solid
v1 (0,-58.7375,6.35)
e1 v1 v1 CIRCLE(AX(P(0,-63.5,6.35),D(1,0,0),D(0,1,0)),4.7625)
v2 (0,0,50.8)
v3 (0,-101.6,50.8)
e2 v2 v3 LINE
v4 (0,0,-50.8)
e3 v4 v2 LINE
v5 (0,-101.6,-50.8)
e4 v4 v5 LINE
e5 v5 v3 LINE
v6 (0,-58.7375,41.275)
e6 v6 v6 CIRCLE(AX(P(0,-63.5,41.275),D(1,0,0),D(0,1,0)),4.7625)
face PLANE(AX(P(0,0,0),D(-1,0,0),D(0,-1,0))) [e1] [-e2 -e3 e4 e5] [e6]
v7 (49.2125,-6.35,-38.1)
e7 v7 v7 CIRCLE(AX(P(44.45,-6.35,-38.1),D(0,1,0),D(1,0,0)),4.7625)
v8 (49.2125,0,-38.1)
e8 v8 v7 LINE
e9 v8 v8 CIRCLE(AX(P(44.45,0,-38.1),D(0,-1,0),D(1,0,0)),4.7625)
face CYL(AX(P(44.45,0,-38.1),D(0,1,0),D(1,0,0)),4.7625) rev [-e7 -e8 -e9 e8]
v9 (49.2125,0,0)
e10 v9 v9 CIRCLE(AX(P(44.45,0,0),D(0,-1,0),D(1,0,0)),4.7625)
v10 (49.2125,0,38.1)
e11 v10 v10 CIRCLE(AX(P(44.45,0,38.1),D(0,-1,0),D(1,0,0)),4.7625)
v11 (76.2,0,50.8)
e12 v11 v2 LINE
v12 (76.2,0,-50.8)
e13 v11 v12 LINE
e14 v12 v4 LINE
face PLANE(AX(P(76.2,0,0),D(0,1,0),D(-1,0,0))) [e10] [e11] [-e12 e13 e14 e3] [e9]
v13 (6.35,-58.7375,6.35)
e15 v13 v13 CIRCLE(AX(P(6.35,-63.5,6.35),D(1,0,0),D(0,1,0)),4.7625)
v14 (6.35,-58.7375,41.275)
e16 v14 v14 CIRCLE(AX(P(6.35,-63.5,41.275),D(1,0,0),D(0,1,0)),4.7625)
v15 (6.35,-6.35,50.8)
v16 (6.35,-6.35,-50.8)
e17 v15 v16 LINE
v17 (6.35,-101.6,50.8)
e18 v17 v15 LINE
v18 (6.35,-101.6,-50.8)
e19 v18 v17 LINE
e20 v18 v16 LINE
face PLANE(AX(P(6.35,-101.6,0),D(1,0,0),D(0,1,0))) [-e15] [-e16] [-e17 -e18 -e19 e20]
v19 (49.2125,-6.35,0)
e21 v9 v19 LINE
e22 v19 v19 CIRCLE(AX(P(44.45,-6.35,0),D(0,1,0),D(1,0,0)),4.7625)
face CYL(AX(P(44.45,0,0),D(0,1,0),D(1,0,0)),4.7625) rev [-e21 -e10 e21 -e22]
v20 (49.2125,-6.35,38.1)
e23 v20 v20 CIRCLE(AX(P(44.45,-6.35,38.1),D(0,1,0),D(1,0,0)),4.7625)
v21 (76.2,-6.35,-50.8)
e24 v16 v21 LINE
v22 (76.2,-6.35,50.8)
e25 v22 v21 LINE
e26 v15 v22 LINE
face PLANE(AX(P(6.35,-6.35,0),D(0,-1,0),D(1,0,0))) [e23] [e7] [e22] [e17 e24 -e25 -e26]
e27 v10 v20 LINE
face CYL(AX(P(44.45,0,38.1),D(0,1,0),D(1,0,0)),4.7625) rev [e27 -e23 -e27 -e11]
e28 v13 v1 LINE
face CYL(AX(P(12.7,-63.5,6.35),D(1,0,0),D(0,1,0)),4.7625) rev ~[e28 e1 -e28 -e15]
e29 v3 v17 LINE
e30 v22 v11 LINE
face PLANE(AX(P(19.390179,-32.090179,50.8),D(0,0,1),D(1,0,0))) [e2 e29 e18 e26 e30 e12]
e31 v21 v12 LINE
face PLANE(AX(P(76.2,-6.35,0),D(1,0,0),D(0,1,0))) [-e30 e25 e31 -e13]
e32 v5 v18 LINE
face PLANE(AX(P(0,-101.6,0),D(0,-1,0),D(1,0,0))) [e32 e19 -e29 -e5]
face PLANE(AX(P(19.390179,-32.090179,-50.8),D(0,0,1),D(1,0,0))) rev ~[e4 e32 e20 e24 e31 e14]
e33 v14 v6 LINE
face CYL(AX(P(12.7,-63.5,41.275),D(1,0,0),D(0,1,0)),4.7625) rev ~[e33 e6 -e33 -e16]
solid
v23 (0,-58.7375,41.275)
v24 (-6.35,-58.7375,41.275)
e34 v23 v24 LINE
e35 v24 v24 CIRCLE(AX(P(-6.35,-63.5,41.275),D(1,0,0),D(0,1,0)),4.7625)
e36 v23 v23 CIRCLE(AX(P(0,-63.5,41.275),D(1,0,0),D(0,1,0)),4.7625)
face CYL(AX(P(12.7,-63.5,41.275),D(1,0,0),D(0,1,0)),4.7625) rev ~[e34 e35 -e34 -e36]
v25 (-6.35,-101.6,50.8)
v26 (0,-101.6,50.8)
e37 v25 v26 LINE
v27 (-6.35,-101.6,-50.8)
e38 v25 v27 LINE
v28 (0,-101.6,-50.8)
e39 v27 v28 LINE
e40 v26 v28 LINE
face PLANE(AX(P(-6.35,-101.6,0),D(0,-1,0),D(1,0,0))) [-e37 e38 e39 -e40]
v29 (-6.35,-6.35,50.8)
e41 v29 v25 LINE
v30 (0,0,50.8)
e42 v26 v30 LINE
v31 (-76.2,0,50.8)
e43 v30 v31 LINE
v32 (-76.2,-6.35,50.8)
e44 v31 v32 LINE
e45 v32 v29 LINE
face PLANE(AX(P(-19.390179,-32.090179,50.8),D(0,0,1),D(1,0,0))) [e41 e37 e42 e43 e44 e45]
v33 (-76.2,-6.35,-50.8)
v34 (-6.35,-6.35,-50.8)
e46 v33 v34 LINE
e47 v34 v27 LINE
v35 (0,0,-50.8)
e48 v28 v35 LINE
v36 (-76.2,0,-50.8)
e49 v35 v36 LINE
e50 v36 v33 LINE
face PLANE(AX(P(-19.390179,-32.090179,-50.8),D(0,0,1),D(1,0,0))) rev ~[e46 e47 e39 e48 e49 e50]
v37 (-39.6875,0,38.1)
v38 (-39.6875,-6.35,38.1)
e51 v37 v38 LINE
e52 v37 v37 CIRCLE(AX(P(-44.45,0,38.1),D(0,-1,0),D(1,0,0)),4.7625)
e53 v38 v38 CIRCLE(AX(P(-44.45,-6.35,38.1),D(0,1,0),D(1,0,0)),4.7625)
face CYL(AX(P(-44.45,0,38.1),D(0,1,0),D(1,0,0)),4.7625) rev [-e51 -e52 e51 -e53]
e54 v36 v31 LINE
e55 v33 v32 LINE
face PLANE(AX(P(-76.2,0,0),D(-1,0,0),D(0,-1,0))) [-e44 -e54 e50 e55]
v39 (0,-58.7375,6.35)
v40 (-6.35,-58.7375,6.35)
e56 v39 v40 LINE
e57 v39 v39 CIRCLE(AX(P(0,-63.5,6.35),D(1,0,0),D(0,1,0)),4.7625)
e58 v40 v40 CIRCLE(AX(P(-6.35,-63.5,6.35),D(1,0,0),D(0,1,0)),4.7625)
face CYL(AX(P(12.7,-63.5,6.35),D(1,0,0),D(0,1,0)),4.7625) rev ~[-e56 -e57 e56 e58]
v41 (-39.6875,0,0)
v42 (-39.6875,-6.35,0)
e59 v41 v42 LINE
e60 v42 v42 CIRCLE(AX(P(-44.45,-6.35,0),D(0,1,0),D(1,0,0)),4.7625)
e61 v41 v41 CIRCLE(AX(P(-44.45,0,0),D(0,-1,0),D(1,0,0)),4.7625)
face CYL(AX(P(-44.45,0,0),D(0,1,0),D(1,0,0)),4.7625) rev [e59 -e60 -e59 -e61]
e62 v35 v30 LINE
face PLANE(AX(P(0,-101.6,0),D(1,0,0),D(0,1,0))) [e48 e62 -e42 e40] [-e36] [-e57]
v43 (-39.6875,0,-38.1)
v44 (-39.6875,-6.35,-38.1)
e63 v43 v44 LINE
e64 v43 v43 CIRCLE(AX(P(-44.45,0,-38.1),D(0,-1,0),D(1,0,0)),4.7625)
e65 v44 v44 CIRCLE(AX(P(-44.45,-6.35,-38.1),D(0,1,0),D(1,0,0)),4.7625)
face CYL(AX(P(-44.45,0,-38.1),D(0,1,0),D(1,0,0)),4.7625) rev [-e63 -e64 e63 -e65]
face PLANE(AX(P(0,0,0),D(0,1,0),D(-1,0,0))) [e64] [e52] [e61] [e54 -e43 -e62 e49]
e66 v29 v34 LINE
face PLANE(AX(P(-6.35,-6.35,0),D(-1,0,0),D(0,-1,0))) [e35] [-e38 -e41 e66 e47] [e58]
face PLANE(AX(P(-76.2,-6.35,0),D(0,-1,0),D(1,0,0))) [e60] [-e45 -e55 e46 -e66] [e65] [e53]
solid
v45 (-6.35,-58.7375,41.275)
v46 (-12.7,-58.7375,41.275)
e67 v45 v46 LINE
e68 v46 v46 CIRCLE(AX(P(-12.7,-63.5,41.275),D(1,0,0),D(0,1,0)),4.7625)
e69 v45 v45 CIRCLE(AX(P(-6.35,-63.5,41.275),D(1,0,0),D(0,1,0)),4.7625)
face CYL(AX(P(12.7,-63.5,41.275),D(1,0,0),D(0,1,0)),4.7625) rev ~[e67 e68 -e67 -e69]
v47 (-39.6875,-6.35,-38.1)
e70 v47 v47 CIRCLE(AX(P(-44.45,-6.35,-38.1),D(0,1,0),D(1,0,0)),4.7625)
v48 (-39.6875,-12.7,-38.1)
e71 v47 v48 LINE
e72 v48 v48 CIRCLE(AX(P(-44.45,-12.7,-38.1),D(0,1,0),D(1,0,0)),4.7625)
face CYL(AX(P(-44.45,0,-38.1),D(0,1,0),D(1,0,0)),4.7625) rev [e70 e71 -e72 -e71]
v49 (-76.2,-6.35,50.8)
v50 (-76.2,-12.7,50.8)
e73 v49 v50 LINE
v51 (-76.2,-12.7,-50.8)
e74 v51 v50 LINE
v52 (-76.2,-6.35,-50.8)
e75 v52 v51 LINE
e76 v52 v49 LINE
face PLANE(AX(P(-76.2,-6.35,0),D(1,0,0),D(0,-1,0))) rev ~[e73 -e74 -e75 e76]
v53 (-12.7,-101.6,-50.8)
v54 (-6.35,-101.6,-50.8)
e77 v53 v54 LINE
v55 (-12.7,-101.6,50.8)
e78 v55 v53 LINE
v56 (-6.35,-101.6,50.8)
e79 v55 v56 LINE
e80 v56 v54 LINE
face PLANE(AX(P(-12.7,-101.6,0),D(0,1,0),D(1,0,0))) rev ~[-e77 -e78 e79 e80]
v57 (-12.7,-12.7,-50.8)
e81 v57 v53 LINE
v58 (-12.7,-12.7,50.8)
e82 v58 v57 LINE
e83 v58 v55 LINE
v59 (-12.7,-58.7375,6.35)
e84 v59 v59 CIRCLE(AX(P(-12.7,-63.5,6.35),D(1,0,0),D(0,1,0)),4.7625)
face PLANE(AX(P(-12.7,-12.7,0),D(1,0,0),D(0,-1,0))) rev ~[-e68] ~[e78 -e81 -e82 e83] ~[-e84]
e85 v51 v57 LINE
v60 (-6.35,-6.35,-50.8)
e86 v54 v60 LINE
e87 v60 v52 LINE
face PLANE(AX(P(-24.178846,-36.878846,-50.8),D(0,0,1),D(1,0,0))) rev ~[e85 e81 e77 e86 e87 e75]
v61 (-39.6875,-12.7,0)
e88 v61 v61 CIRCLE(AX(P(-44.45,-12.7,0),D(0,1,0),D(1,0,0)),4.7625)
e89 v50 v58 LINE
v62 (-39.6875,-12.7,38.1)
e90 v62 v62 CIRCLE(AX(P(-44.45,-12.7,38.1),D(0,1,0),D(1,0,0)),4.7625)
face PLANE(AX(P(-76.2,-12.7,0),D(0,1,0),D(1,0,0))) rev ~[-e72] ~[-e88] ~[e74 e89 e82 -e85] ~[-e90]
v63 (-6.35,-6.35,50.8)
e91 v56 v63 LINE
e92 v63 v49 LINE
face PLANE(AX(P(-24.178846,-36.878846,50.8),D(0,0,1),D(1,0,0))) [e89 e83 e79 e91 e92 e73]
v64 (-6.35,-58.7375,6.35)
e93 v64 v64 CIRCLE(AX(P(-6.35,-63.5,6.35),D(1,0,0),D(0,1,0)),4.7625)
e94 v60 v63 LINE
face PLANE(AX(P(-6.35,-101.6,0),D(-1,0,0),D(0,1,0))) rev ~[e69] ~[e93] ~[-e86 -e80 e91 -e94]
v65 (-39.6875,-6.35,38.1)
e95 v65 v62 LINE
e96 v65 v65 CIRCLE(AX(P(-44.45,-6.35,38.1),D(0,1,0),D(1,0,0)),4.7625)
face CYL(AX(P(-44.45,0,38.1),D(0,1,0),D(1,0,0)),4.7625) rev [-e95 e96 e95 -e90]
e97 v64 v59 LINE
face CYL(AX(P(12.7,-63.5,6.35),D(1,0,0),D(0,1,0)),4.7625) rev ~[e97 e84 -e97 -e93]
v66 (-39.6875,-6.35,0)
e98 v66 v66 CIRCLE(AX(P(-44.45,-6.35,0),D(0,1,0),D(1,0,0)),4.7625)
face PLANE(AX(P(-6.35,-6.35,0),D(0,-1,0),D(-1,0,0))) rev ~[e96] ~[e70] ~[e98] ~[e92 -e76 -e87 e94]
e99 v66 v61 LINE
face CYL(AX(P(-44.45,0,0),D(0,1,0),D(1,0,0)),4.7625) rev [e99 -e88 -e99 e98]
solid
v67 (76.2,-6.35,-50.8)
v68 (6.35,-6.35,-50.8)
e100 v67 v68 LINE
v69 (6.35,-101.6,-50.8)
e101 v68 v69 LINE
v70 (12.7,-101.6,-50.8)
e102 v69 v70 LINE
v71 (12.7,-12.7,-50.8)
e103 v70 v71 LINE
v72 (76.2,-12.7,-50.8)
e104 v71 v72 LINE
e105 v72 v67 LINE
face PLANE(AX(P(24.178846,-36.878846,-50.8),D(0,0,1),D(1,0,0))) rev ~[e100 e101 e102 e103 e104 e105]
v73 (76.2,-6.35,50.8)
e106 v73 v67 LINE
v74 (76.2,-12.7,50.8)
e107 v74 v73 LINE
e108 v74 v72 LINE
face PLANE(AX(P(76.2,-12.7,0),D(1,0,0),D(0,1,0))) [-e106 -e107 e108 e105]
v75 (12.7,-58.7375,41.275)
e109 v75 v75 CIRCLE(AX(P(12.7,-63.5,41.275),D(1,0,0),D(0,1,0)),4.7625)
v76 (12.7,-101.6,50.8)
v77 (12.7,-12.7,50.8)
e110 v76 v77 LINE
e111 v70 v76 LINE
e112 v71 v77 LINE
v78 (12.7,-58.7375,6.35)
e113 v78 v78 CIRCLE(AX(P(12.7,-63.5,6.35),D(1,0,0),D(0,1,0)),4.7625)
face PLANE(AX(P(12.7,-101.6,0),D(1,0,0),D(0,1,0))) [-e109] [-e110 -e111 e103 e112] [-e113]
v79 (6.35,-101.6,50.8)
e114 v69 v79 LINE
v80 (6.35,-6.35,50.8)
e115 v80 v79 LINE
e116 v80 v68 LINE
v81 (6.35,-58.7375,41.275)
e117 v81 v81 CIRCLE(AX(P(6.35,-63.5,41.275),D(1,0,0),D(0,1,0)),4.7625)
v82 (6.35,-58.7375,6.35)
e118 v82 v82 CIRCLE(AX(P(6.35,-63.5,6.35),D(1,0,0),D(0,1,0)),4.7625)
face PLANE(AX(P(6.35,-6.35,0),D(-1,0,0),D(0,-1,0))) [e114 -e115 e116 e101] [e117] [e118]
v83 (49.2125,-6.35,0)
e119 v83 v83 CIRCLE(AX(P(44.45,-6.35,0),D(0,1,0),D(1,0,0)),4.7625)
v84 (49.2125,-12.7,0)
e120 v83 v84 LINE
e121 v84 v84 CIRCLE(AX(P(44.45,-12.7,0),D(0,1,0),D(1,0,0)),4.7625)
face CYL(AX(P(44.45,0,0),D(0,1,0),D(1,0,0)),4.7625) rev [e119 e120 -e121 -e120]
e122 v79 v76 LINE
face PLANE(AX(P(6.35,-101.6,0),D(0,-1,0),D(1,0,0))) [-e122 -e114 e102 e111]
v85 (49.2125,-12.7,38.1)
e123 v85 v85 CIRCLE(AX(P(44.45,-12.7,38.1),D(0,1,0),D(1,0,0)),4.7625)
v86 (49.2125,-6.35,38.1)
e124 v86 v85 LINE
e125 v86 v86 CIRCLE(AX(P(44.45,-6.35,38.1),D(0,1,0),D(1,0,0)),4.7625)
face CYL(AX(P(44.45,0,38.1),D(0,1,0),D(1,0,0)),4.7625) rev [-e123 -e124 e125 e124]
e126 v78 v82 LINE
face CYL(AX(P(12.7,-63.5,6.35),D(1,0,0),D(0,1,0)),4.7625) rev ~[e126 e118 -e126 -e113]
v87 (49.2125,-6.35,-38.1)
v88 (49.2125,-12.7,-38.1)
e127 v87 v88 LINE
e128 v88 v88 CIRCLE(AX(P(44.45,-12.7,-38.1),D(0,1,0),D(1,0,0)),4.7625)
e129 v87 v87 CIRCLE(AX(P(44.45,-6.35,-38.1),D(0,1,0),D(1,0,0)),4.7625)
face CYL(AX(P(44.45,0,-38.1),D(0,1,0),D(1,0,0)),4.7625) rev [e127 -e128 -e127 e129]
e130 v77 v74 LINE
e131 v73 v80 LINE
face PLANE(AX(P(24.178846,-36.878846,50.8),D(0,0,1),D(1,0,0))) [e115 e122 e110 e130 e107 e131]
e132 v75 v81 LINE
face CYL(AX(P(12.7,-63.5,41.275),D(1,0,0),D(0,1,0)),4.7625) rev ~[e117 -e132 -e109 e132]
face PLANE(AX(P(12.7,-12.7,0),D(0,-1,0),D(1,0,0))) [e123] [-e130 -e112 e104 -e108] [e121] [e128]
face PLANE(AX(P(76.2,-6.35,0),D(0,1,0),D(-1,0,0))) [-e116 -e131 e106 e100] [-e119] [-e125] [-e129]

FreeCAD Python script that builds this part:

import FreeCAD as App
import Part
import Sketcher
from FreeCAD import Vector
Q = App.Units.Quantity

doc = App.newDocument("Part")
body = doc.addObject("PartDesign::Body", "Body")

sketch1 = body.newObject("Sketcher::SketchObject", "Sketch")
sketch1.AttachmentSupport = (doc.getObject("XY_Plane"), [""])
sketch1.MapMode = "FlatFace"
sketch1.addGeometry([
    Part.LineSegment(Vector(76, 0, 0), Vector(0, 0, 0)),
    Part.LineSegment(Vector(0, 0, 0), Vector(0, -102, 0)),
    Part.LineSegment(Vector(0, -102, 0), Vector(6, -102, 0)),
    Part.LineSegment(Vector(6, -102, 0), Vector(6, -6, 0)),
    Part.LineSegment(Vector(6, -6, 0), Vector(76, -6, 0)),
    Part.LineSegment(Vector(76, -6, 0), Vector(76, 0, 0)),
], False)
sketch1.addConstraint([
    Sketcher.Constraint("Coincident", 0, 2, 1, 1),
    Sketcher.Constraint("Coincident", 1, 2, 2, 1),
    Sketcher.Constraint("Coincident", 2, 2, 3, 1),
    Sketcher.Constraint("Coincident", 3, 2, 4, 1),
    Sketcher.Constraint("Coincident", 4, 2, 5, 1),
    Sketcher.Constraint("Coincident", 5, 2, 0, 1),
    Sketcher.Constraint("Horizontal", 0),
    Sketcher.Constraint("Vertical", 1),
    Sketcher.Constraint("Horizontal", 2),
    Sketcher.Constraint("Vertical", 3),
    Sketcher.Constraint("Horizontal", 4),
    Sketcher.Constraint("Vertical", 5),
    Sketcher.Constraint("Coincident", 0, 2, -1, 1),
    Sketcher.Constraint("Equal", 2, 5),
    Sketcher.Constraint("DistanceX", 0, 2, 0, 1, Q("3 in")),
    Sketcher.Constraint("DistanceY", 1, 2, 1, 1, Q("4 in")),
    Sketcher.Constraint("DistanceX", 2, 1, 2, 2, Q("0.25 in")),
])
pad1 = body.newObject("PartDesign::Pad", "Pad")
pad1.Profile = sketch1
pad1.Length = Q("4 in")
pad1.Midplane = True
body2 = doc.addObject("PartDesign::Body", "Body001")

sketch2 = body2.newObject("Sketcher::SketchObject", "Sketch001")
sketch2.AttachmentSupport = (doc.getObject("XY_Plane001"), [""])
sketch2.MapMode = "FlatFace"
sketch2.addGeometry([
    Part.LineSegment(Vector(0, -102, 0), Vector(0, 0, 0)),
    Part.LineSegment(Vector(0, 0, 0), Vector(-76, 0, 0)),
    Part.LineSegment(Vector(-76, 0, 0), Vector(-76, -6, 0)),
    Part.LineSegment(Vector(-76, -6, 0), Vector(-6, -6, 0)),
    Part.LineSegment(Vector(-6, -6, 0), Vector(-6, -102, 0)),
    Part.LineSegment(Vector(-6, -102, 0), Vector(0, -102, 0)),
], False)
sketch2.addConstraint([
    Sketcher.Constraint("Coincident", 0, 2, 1, 1),
    Sketcher.Constraint("Coincident", 1, 2, 2, 1),
    Sketcher.Constraint("Coincident", 2, 2, 3, 1),
    Sketcher.Constraint("Coincident", 3, 2, 4, 1),
    Sketcher.Constraint("Coincident", 4, 2, 5, 1),
    Sketcher.Constraint("Coincident", 5, 2, 0, 1),
    Sketcher.Constraint("Vertical", 0),
    Sketcher.Constraint("Horizontal", 1),
    Sketcher.Constraint("Vertical", 2),
    Sketcher.Constraint("Horizontal", 3),
    Sketcher.Constraint("Vertical", 4),
    Sketcher.Constraint("Horizontal", 5),
    Sketcher.Constraint("Coincident", 0, 2, -1, 1),
    Sketcher.Constraint("Equal", 5, 2),
    Sketcher.Constraint("DistanceX", 1, 2, 1, 1, Q("3 in")),
    Sketcher.Constraint("DistanceY", 0, 1, 0, 2, Q("4 in")),
    Sketcher.Constraint("DistanceX", 3, 1, 3, 2, Q("2.75 in")),
])
pad2 = body2.newObject("PartDesign::Pad", "Pad001")
pad2.Profile = sketch2
pad2.Length = Q("4 in")
pad2.Midplane = True
body3 = doc.addObject("PartDesign::Body", "Body002")
body3.AllowCompound = True

sketch3 = body3.newObject("Sketcher::SketchObject", "Sketch002")
sketch3.AttachmentSupport = (doc.getObject("XY_Plane002"), [""])
sketch3.MapMode = "FlatFace"
sketch3.addGeometry([
    Part.LineSegment(Vector(-6, -102, 0), Vector(-6, -6, 0)),
    Part.LineSegment(Vector(-6, -6, 0), Vector(-76, -6, 0)),
    Part.LineSegment(Vector(-76, -6, 0), Vector(-76, -13, 0)),
    Part.LineSegment(Vector(-76, -13, 0), Vector(-13, -13, 0)),
    Part.LineSegment(Vector(-13, -13, 0), Vector(-13, -102, 0)),
    Part.LineSegment(Vector(-13, -102, 0), Vector(-6, -102, 0)),
    Part.LineSegment(Vector(6, -6, 0), Vector(6, -102, 0)),
    Part.LineSegment(Vector(6, -102, 0), Vector(13, -102, 0)),
    Part.LineSegment(Vector(13, -102, 0), Vector(13, -13, 0)),
    Part.LineSegment(Vector(13, -13, 0), Vector(76, -13, 0)),
    Part.LineSegment(Vector(76, -13, 0), Vector(76, -6, 0)),
    Part.LineSegment(Vector(76, -6, 0), Vector(6, -6, 0)),
], False)
sketch3.addConstraint([
    Sketcher.Constraint("Coincident", 0, 2, 1, 1),
    Sketcher.Constraint("Coincident", 1, 2, 2, 1),
    Sketcher.Constraint("Coincident", 2, 2, 3, 1),
    Sketcher.Constraint("Coincident", 3, 2, 4, 1),
    Sketcher.Constraint("Coincident", 4, 2, 5, 1),
    Sketcher.Constraint("Coincident", 5, 2, 0, 1),
    Sketcher.Constraint("Coincident", 6, 2, 7, 1),
    Sketcher.Constraint("Coincident", 7, 2, 8, 1),
    Sketcher.Constraint("Coincident", 8, 2, 9, 1),
    Sketcher.Constraint("Coincident", 9, 2, 10, 1),
    Sketcher.Constraint("Coincident", 10, 2, 11, 1),
    Sketcher.Constraint("Coincident", 11, 2, 6, 1),
    Sketcher.Constraint("Vertical", 0),
    Sketcher.Constraint("Horizontal", 1),
    Sketcher.Constraint("Vertical", 2),
    Sketcher.Constraint("Horizontal", 3),
    Sketcher.Constraint("Vertical", 4),
    Sketcher.Constraint("Horizontal", 5),
    Sketcher.Constraint("Vertical", 6),
    Sketcher.Constraint("Horizontal", 7),
    Sketcher.Constraint("Vertical", 8),
    Sketcher.Constraint("Horizontal", 9),
    Sketcher.Constraint("Vertical", 10),
    Sketcher.Constraint("Horizontal", 11),
    Sketcher.Constraint("Symmetric", 5, 2, 6, 2, -2),
    Sketcher.Constraint("Symmetric", 3, 2, 8, 2, -2),
    Sketcher.Constraint("Symmetric", 1, 2, 10, 2, -2),
    Sketcher.Constraint("Equal", 7, 2),
    Sketcher.Constraint("DistanceX", 3, 1, 3, 2, Q("2.5 in")),
    Sketcher.Constraint("DistanceY", 4, 2, 4, 1, Q("3.5 in")),
    Sketcher.Constraint("DistanceX", 1, 2, -1, 1, Q("3 in")),
    Sketcher.Constraint("DistanceY", 4, 2, -1, 1, Q("4 in")),
    Sketcher.Constraint("DistanceX", 1, 2, 1, 1, Q("2.75 in")),
])
pad3 = body3.newObject("PartDesign::Pad", "Pad002")
pad3.Profile = sketch3
pad3.Length = Q("4 in")
pad3.Midplane = True
body4 = doc.addObject("PartDesign::Body", "Body003")
body4.AllowCompound = True

sketch4 = body4.newObject("Sketcher::SketchObject", "Sketch003")
sketch4.AttachmentSupport = (doc.getObject("XZ_Plane003"), [""])
sketch4.MapMode = "FlatFace"
sketch4.addGeometry([
    Part.Circle(Vector(44.5, 38.1, 0), Vector(0, 0, 1), 4.8),
    Part.Circle(Vector(44.5, 0, 0), Vector(0, 0, 1), 4.8),
    Part.Circle(Vector(44.5, -38.1, 0), Vector(0, 0, 1), 4.8),
    Part.Circle(Vector(-44.5, 38.1, 0), Vector(0, 0, 1), 4.8),
    Part.Circle(Vector(-44.5, 0, 0), Vector(0, 0, 1), 4.8),
    Part.Circle(Vector(-44.5, -38.1, 0), Vector(0, 0, 1), 4.8),
], False)
sketch4.addConstraint([
    Sketcher.Constraint("Equal", 0, 1),
    Sketcher.Constraint("Equal", 1, 2),
    Sketcher.Constraint("Equal", 2, 3),
    Sketcher.Constraint("Equal", 3, 4),
    Sketcher.Constraint("Equal", 4, 5),
    Sketcher.Constraint("Symmetric", 2, 3, 3, 3, -1, 1),
    Sketcher.Constraint("Symmetric", 1, 3, 4, 3, -1, 1),
    Sketcher.Constraint("Symmetric", 0, 3, 5, 3, -1, 1),
    Sketcher.Constraint("Symmetric", 0, 3, 3, 3, -2),
    Sketcher.Constraint("PointOnObject", 1, 3, -1),
    Sketcher.Constraint("Vertical", 0, 3, 1, 3),
    Sketcher.Constraint("Diameter", 0, Q("0.375 in")),
    Sketcher.Constraint("DistanceY", 2, 3, 0, 3, Q("3 in")),
    Sketcher.Constraint("DistanceX", 3, 3, 0, 3, Q("3.5 in")),
])
pad4 = body4.newObject("PartDesign::Pad", "Pad003")
pad4.Profile = sketch4
pad4.Length = 101.601
doc.recompute()

body5 = doc.addObject("PartDesign::Body", "Body004")
body5.BaseFeature = body4
boolean = body.newObject("PartDesign::Boolean", "Boolean")
boolean.Type = "Cut"
boolean.addObjects([body5])
doc.recompute()

body6 = doc.addObject("PartDesign::Body", "Body005")
body6.BaseFeature = body4
boolean2 = body2.newObject("PartDesign::Boolean", "Boolean001")
boolean2.Type = "Cut"
boolean2.addObjects([body6])
doc.recompute()
body3.AllowCompound = True
doc.recompute()

boolean3 = body3.newObject("PartDesign::Boolean", "Boolean002")
boolean3.Type = "Cut"
boolean3.addObjects([body4])
body7 = doc.addObject("PartDesign::Body", "Body006")
body7.AllowCompound = True

sketch5 = body7.newObject("Sketcher::SketchObject", "Sketch004")
sketch5.AttachmentSupport = (doc.getObject("YZ_Plane006"), [""])
sketch5.MapMode = "FlatFace"
sketch5.AttachmentOffset = App.Placement(Vector(0, 0, 0.5 * 25.4), App.Rotation())
sketch5.addGeometry([
    Part.Circle(Vector(-63.5, 41.3, 0), Vector(0, 0, 1), 4.8),
    Part.Circle(Vector(-63.5, 6.3, 0), Vector(0, 0, 1), 4.8),
], False)
sketch5.addConstraint([
    Sketcher.Constraint("Equal", 0, 1),
    Sketcher.Constraint("Vertical", 0, 3, 1, 3),
    Sketcher.Constraint("Diameter", 0, Q("0.375 in")),
    Sketcher.Constraint("DistanceX", 0, 3, -1, 1, Q("2.5 in")),
    Sketcher.Constraint("DistanceY", -1, 1, 1, 3, Q("0.25 in")),
    Sketcher.Constraint("DistanceY", -1, 1, 0, 3, Q("1.625 in")),
])
pad5 = body7.newObject("PartDesign::Pad", "Pad004")
pad5.Profile = sketch5
pad5.Length = 88.901
pad5.Reversed = True
doc.recompute()

body8 = doc.addObject("PartDesign::Body", "Body007")
body8.BaseFeature = body7
boolean4 = body.newObject("PartDesign::Boolean", "Boolean003")
boolean4.Type = "Cut"
boolean4.addObjects([body8])
doc.recompute()

body9 = doc.addObject("PartDesign::Body", "Body008")
body9.BaseFeature = body7
boolean5 = body2.newObject("PartDesign::Boolean", "Boolean004")
boolean5.Type = "Cut"
boolean5.addObjects([body9])
doc.recompute()
body3.AllowCompound = True
doc.recompute()

boolean6 = body3.newObject("PartDesign::Boolean", "Boolean005")
boolean6.Type = "Cut"
boolean6.addObjects([body7])

doc.recompute()
